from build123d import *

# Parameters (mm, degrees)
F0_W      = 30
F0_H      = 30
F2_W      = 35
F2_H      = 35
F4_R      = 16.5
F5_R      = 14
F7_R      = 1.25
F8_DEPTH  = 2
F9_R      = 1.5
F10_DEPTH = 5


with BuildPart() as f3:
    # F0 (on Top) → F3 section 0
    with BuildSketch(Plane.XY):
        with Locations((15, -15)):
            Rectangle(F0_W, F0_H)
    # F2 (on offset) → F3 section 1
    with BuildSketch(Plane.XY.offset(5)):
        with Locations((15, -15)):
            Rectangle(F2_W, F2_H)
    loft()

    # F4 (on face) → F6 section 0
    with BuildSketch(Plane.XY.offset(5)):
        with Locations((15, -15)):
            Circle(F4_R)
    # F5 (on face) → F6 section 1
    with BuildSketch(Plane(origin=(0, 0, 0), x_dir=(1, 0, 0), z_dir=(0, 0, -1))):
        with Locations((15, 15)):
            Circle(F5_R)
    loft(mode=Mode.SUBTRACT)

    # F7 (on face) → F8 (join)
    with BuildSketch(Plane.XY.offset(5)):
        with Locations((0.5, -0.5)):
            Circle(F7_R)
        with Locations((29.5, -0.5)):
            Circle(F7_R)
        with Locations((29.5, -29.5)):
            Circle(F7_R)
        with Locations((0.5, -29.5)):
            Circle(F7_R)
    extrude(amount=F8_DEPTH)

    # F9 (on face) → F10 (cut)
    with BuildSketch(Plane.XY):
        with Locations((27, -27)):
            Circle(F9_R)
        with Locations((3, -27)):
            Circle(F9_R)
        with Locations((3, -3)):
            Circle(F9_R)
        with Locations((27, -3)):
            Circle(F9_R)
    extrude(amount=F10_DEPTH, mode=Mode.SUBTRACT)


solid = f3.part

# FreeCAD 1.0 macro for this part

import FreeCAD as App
import Part
import Sketcher
from FreeCAD import Vector
Q = App.Units.Quantity

doc = App.newDocument("Part")
body = doc.addObject("PartDesign::Body", "Body")

# Sketch on XY plane
sketch1 = doc.addObject("Sketcher::SketchObject", "Sketch")
body.addObject(sketch1)
sketch1.AttachmentSupport = (doc.XY_Plane, [""])
sketch1.MapMode = "FlatFace"
sketch1.addGeometry([
    Part.LineSegment(Vector(0, 0, 0), Vector(0, -30, 0)),
    Part.LineSegment(Vector(0, -30, 0), Vector(30, -30, 0)),
    Part.LineSegment(Vector(30, -30, 0), Vector(30, 0, 0)),
    Part.LineSegment(Vector(30, 0, 0), Vector(0, 0, 0)),
], False)
sketch1.addConstraint([
    Sketcher.Constraint("Coincident", 0, 2, 1, 1),
    Sketcher.Constraint("Coincident", 1, 2, 2, 1),
    Sketcher.Constraint("Coincident", 2, 2, 3, 1),
    Sketcher.Constraint("Coincident", 3, 2, 0, 1),
    Sketcher.Constraint("Vertical", 0),
    Sketcher.Constraint("Horizontal", 1),
    Sketcher.Constraint("Vertical", 2),
    Sketcher.Constraint("Horizontal", 3),
    Sketcher.Constraint("Coincident", 3, 2, -1, 1),
    Sketcher.Constraint("Equal", 3, 0),
    Sketcher.Constraint("DistanceX", 1, 1, 1, 2, Q("30 mm")),
])

# Sketch on XY plane
sketch2 = doc.addObject("Sketcher::SketchObject", "Sketch001")
body.addObject(sketch2)
sketch2.AttachmentSupport = (doc.XY_Plane, [""])
sketch2.MapMode = "FlatFace"
sketch2.AttachmentOffset = App.Placement(Vector(0, 0, 5), App.Rotation())
sketch2.addGeometry([
    Part.LineSegment(Vector(-2, 2, 0), Vector(-2, -32, 0)),
    Part.LineSegment(Vector(-2, -32, 0), Vector(32, -32, 0)),
    Part.LineSegment(Vector(32, -32, 0), Vector(32, 2, 0)),
    Part.LineSegment(Vector(32, 2, 0), Vector(-2, 2, 0)),
], False)
sketch2.addConstraint([
    Sketcher.Constraint("Coincident", 0, 2, 1, 1),
    Sketcher.Constraint("Coincident", 1, 2, 2, 1),
    Sketcher.Constraint("Coincident", 2, 2, 3, 1),
    Sketcher.Constraint("Coincident", 3, 2, 0, 1),
    Sketcher.Constraint("Vertical", 0),
    Sketcher.Constraint("Horizontal", 1),
    Sketcher.Constraint("Vertical", 2),
    Sketcher.Constraint("Horizontal", 3),
    Sketcher.Constraint("Equal", 3, 0),
    Sketcher.Constraint("DistanceX", 1, 1, 1, 2, Q("35 mm")),
    Sketcher.Constraint("DistanceX", 0, 2, -1, 1, Q("2.5 mm")),
    Sketcher.Constraint("DistanceY", 0, 2, -1, 1, Q("32.5 mm")),
])

additiveloft = doc.addObject("PartDesign::AdditiveLoft", "AdditiveLoft")
body.addObject(additiveloft)
additiveloft.Profile = sketch1
additiveloft.Sections = [sketch2]

# Sketch on XY plane
sketch3 = doc.addObject("Sketcher::SketchObject", "Sketch002")
body.addObject(sketch3)
sketch3.AttachmentSupport = (doc.XY_Plane, [""])
sketch3.MapMode = "FlatFace"
sketch3.AttachmentOffset = App.Placement(Vector(0, 0, 5), App.Rotation())
sketch3.addGeometry(Part.Circle(Vector(15, -15, 0), Vector(0, 0, 1), 16), False)
sketch3.addConstraint([
    Sketcher.Constraint("Diameter", 0, Q("33 mm")),
    Sketcher.Constraint("DistanceX", -1, 1, 0, 3, Q("15 mm")),
    Sketcher.Constraint("DistanceY", 0, 3, -1, 1, Q("15 mm")),
])

# Sketch on XY plane
sketch4 = doc.addObject("Sketcher::SketchObject", "Sketch003")
body.addObject(sketch4)
sketch4.AttachmentSupport = (doc.XY_Plane, [""])
sketch4.MapMode = "FlatFace"
sketch4.addGeometry(Part.Circle(Vector(15, -15, 0), Vector(0, 0, 1), 14), False)
sketch4.addConstraint([
    Sketcher.Constraint("Diameter", 0, Q("28 mm")),
    Sketcher.Constraint("DistanceX", -1, 1, 0, 3, Q("15 mm")),
    Sketcher.Constraint("DistanceY", 0, 3, -1, 1, Q("15 mm")),
])

subtractiveloft = doc.addObject("PartDesign::SubtractiveLoft", "SubtractiveLoft")
body.addObject(subtractiveloft)
subtractiveloft.Profile = sketch3
subtractiveloft.Sections = [sketch4]

# Sketch on XY plane
sketch5 = doc.addObject("Sketcher::SketchObject", "Sketch004")
body.addObject(sketch5)
sketch5.AttachmentSupport = (doc.XY_Plane, [""])
sketch5.MapMode = "FlatFace"
sketch5.AttachmentOffset = App.Placement(Vector(0, 0, 5), App.Rotation())
sketch5.addGeometry([
    Part.Circle(Vector(0.5, -0.5, 0), Vector(0, 0, 1), 1.2),
    Part.Circle(Vector(29.5, -0.5, 0), Vector(0, 0, 1), 1.2),
    Part.Circle(Vector(29.5, -29.5, 0), Vector(0, 0, 1), 1.2),
    Part.Circle(Vector(0.5, -29.5, 0), Vector(0, 0, 1), 1.2),
], False)
sketch5.addConstraint([
    Sketcher.Constraint("Equal", 0, 1),
    Sketcher.Constraint("Equal", 1, 2),
    Sketcher.Constraint("Equal", 2, 3),
    Sketcher.Constraint("Horizontal", 0, 3, 1, 3),
    Sketcher.Constraint("Horizontal", 2, 3, 3, 3),
    Sketcher.Constraint("Vertical", 1, 3, 2, 3),
    Sketcher.Constraint("Vertical", 0, 3, 3, 3),
    Sketcher.Constraint("Diameter", 0, Q("2.5 mm")),
    Sketcher.Constraint("DistanceX", 0, 3, 1, 3, Q("29 mm")),
    Sketcher.Constraint("DistanceY", 2, 3, 1, 3, Q("29 mm")),
    Sketcher.Constraint("DistanceX", -1, 1, 0, 3, Q("0.5 mm")),
    Sketcher.Constraint("DistanceY", 0, 3, -1, 1, Q("0.5 mm")),
])
pad1 = doc.addObject("PartDesign::Pad", "Pad")
body.addObject(pad1)
pad1.Profile = sketch5
pad1.Length = 2

# Sketch on XY plane
sketch6 = doc.addObject("Sketcher::SketchObject", "Sketch005")
body.addObject(sketch6)
sketch6.AttachmentSupport = (doc.XY_Plane, [""])
sketch6.MapMode = "FlatFace"
sketch6.addGeometry([
    Part.Circle(Vector(27, -27, 0), Vector(0, 0, 1), 1.5),
    Part.Circle(Vector(3, -27, 0), Vector(0, 0, 1), 1.5),
    Part.Circle(Vector(3, -3, 0), Vector(0, 0, 1), 1.5),
    Part.Circle(Vector(27, -3, 0), Vector(0, 0, 1), 1.5),
], False)
sketch6.addConstraint([
    Sketcher.Constraint("Equal", 0, 1),
    Sketcher.Constraint("Equal", 1, 2),
    Sketcher.Constraint("Equal", 2, 3),
    Sketcher.Constraint("Horizontal", 0, 3, 1, 3),
    Sketcher.Constraint("Horizontal", 2, 3, 3, 3),
    Sketcher.Constraint("Vertical", 1, 3, 2, 3),
    Sketcher.Constraint("Vertical", 0, 3, 3, 3),
    Sketcher.Constraint("Diameter", 0, Q("3 mm")),
    Sketcher.Constraint("DistanceX", -1, 1, 0, 3, Q("27 mm")),
    Sketcher.Constraint("DistanceY", 0, 3, -1, 1, Q("27 mm")),
    Sketcher.Constraint("DistanceX", -1, 1, 1, 3, Q("3 mm")),
    Sketcher.Constraint("DistanceY", 2, 3, -1, 1, Q("3 mm")),
])
pocket1 = doc.addObject("PartDesign::Pocket", "Pocket")
body.addObject(pocket1)
pocket1.Profile = sketch6
pocket1.Length = 5
pocket1.Reversed = True

doc.recompute()
